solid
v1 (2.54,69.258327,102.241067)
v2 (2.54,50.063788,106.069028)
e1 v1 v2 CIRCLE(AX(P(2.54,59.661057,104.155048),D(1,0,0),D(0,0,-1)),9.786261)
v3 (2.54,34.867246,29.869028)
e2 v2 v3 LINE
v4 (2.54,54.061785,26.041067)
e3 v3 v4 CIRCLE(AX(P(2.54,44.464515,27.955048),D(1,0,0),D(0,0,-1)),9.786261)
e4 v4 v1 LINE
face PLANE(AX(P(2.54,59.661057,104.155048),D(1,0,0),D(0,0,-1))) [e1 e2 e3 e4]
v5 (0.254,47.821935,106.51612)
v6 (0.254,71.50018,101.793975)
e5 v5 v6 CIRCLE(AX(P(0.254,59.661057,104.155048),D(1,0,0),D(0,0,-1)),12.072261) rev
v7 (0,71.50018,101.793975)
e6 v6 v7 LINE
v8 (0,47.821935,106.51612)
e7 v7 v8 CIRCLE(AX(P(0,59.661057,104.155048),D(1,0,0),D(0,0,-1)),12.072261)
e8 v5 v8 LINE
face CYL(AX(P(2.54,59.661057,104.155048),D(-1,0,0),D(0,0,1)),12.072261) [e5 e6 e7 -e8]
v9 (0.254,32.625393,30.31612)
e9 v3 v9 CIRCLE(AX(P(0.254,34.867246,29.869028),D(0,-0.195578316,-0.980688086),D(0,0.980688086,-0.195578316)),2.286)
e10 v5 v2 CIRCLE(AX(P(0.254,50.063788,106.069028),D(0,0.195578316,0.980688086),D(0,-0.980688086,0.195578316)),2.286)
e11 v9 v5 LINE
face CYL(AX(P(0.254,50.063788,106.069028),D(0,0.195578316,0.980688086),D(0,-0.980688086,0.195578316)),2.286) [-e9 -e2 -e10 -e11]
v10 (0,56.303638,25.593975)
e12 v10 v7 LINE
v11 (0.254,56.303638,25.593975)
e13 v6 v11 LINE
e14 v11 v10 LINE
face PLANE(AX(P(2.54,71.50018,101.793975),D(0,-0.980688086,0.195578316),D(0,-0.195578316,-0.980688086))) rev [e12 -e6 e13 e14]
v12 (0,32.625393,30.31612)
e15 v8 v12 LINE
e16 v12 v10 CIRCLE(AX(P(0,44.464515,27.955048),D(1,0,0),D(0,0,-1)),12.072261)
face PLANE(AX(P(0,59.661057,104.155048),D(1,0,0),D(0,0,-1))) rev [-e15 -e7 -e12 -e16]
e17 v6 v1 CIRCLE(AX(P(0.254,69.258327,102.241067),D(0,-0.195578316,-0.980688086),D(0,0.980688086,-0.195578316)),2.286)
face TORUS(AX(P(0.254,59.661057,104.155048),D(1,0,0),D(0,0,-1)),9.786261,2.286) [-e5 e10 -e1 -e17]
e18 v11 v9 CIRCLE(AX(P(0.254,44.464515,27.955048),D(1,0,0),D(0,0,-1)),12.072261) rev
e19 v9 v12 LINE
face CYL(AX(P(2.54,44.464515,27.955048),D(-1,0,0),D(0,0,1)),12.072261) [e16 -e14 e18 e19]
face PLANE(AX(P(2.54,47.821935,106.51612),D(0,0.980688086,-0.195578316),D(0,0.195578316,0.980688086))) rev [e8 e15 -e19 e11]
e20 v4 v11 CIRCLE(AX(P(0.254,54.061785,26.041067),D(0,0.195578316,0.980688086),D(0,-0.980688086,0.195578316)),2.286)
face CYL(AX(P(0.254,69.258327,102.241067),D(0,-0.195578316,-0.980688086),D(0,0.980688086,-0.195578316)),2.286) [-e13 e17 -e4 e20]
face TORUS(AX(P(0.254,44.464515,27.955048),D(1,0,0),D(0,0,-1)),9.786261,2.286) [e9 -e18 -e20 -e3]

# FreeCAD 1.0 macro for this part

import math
import FreeCAD as App
import Part
import Sketcher
Q = App.Units.Quantity


def edges_at(feature, points):
    """Names of the edges that pass closest to the given points."""
    edges = feature.Shape.Edges
    near = lambda p: min(range(len(edges)), key=lambda i: edges[i].distToShape(Part.Vertex(*p))[0])
    return sorted({f"Edge{near(p) + 1}" for p in points})

doc = App.newDocument("Part")
body = doc.addObject("PartDesign::Body", "Body")

# Sketch on YZ plane
sketch1 = body.newObject("Sketcher::SketchObject", "Sketch")
sketch1.AttachmentSupport = (doc.getObject("YZ_Plane"), [""])
sketch1.MapMode = "FlatFace"
sketch1.addGeometry([
    Part.LineSegment(App.Vector(56, 26, 0), App.Vector(72, 102, 0)),
    Part.ArcOfCircle(Part.Circle(App.Vector(60, 104, 0), App.Vector(0, 0, 1), 12), math.radians(-11), math.radians(169)),
    Part.LineSegment(App.Vector(48, 107, 0), App.Vector(33, 30, 0)),
    Part.ArcOfCircle(Part.Circle(App.Vector(44, 28, 0), App.Vector(0, 0, 1), 12), math.radians(169), math.radians(349)),
], False)
sketch1.addConstraint([
    Sketcher.Constraint("Tangent", 0, 2, 1, 1),
    Sketcher.Constraint("Tangent", 1, 2, 2, 1),
    Sketcher.Constraint("Tangent", 2, 2, 3, 1),
    Sketcher.Constraint("Tangent", 3, 2, 0, 1),
    Sketcher.Constraint("Equal", 1, 3),
    Sketcher.Constraint("DistanceY", 3, 3, 1, 3, Q("3 in")),
    Sketcher.Constraint("Radius", 1, Q("12.072261 mm")),
    Sketcher.Constraint("DistanceX", -1, 1, 0, 2, Q("71.50018 mm")),
    Sketcher.Constraint("DistanceY", -1, 1, 1, 2, Q("106.51612 mm")),
    Sketcher.Constraint("DistanceX", 3, 3, 1, 3, Q("15.196542 mm")),
])
pad1 = body.newObject("PartDesign::Pad", "Pad")
pad1.Profile = sketch1
pad1.Length = Q("0.1 in")
doc.recompute()

fillet = body.newObject("PartDesign::Fillet", "Fillet")
fillet.Base = (pad1, edges_at(pad1, [
    (2.54, 42.103, 16.116),
    (2.54, 63.902, 63.694),
    (2.54, 62.022, 115.994),
    (2.54, 40.224, 68.416),
]))
fillet.Radius = Q("0.09 in")

doc.recompute()
